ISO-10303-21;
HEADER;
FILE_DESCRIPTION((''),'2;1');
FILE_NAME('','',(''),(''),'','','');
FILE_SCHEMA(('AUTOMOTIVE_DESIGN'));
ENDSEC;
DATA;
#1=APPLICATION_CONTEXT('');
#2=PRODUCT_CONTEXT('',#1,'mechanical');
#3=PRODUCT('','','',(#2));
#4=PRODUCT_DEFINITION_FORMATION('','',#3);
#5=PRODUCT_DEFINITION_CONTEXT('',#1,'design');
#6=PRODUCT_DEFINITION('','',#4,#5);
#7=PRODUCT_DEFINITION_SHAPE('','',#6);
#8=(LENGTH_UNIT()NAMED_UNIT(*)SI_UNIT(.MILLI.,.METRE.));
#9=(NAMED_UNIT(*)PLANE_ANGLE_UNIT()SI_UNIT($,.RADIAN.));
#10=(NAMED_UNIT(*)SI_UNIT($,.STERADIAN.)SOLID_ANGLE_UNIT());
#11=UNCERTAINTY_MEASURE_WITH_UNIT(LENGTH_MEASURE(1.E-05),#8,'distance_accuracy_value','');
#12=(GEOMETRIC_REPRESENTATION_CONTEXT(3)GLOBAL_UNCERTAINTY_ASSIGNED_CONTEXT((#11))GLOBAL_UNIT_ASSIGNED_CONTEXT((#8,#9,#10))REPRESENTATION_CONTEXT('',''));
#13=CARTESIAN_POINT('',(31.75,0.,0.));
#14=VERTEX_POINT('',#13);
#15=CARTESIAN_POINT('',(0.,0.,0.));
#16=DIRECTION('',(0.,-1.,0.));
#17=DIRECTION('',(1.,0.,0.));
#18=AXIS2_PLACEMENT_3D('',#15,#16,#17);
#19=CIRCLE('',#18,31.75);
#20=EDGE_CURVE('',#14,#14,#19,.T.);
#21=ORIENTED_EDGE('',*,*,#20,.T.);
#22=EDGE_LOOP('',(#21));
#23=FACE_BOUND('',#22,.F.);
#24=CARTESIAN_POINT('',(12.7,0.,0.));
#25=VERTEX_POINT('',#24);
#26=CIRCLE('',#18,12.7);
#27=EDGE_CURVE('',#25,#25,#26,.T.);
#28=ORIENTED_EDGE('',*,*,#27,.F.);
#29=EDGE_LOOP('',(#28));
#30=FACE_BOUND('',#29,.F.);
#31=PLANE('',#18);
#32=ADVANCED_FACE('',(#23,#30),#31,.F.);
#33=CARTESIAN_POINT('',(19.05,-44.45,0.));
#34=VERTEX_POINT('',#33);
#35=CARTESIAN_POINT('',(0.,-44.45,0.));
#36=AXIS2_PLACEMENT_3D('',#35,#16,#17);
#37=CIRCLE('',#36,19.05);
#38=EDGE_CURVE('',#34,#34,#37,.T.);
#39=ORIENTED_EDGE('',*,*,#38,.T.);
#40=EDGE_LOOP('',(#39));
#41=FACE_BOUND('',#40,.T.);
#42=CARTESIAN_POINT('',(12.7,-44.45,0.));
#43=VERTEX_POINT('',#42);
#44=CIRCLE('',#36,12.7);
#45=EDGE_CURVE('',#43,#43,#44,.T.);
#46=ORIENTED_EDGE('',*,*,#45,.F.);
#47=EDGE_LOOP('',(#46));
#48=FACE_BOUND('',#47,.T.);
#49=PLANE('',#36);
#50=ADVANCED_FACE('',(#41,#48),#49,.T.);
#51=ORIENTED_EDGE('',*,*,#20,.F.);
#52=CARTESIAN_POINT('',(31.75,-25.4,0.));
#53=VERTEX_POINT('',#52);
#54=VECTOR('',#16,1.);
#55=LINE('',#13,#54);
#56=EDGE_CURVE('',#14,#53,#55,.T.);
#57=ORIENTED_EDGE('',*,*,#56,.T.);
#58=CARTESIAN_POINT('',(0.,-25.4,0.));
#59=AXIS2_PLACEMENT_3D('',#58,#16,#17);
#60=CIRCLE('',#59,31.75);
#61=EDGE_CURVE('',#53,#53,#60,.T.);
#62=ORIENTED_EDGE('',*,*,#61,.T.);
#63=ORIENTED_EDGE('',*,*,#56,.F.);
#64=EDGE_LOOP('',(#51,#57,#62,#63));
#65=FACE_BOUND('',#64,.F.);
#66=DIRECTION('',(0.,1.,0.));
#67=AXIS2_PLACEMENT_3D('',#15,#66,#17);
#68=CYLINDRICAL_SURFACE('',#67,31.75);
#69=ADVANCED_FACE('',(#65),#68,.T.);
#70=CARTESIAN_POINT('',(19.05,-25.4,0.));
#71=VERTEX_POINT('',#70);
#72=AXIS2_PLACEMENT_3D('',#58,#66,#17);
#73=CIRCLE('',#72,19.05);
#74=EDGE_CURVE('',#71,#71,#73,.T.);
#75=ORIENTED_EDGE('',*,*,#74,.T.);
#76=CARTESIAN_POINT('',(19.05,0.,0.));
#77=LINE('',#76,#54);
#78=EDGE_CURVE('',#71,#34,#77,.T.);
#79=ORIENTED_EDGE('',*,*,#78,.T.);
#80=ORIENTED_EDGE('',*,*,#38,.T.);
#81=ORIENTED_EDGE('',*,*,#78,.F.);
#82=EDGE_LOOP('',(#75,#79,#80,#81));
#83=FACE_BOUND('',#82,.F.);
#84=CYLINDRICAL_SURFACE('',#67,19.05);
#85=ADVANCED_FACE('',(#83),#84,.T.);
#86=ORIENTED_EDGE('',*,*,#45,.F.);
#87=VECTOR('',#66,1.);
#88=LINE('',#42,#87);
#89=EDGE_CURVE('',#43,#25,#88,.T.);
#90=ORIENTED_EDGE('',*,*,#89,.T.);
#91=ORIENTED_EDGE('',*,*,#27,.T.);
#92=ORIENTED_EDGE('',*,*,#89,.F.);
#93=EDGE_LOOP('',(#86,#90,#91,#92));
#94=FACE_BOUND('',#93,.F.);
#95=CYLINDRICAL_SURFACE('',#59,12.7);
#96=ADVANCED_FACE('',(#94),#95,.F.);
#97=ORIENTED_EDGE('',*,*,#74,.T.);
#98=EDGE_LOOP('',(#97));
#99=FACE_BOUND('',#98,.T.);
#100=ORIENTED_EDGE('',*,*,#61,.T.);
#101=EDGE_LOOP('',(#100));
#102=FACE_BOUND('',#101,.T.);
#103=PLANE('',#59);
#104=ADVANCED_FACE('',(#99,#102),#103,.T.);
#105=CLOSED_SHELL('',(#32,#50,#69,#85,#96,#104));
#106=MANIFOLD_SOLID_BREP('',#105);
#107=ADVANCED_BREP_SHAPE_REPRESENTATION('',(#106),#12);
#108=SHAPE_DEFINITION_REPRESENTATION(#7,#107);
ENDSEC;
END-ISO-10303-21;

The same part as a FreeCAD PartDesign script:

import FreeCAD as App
import Part
import Sketcher
Q = App.Units.Quantity

doc = App.newDocument("Part")
params = doc.addObject("Spreadsheet::Sheet", "Params")
for row, (alias, value) in enumerate([
    ("sketch1_diameter", "1 in"),
    ("sketch1_diameter2", "1.5 in"),
    ("pad1_length", "1.75 in"),
    ("sketch2_diameter", "2.5 in"),
    ("pad2_length", "1 in"),
    ("sketch3_diameter", "1 in"),
    ("pocket1_length", "1 in"),
], start=1):
    params.set(f"A{row}", alias)
    params.set(f"B{row}", "=" + value)
    params.setAlias(f"B{row}", alias)

body = doc.addObject("PartDesign::Body", "Body")

sketch1 = body.newObject("Sketcher::SketchObject", "Sketch")
sketch1.AttachmentSupport = (doc.getObject("XZ_Plane"), [""])
sketch1.MapMode = "FlatFace"
sketch1.addGeometry([
    Part.Circle(App.Vector(0, 0, 0), App.Vector(0, 0, 1), 19),
    Part.Circle(App.Vector(0, 0, 0), App.Vector(0, 0, 1), 13),
], False)
sketch1.addConstraint([
    Sketcher.Constraint("Coincident", 0, 3, -1, 1),
    Sketcher.Constraint("Coincident", 1, 3, -1, 1),
    Sketcher.Constraint("Diameter", 1, Q("1 in")),
    Sketcher.Constraint("Diameter", 0, Q("1.5 in")),
])
sketch1.setExpression("Constraints[2]", "Params.sketch1_diameter")
sketch1.setExpression("Constraints[3]", "Params.sketch1_diameter2")
pad1 = body.newObject("PartDesign::Pad", "Pad")
pad1.Profile = sketch1
pad1.setExpression("Length", "Params.pad1_length")

sketch2 = body.newObject("Sketcher::SketchObject", "Sketch001")
sketch2.AttachmentSupport = (doc.getObject("XZ_Plane"), [""])
sketch2.MapMode = "FlatFace"
sketch2.addGeometry(Part.Circle(App.Vector(0, 0, 0), App.Vector(0, 0, 1), 32), False)
sketch2.addConstraint([
    Sketcher.Constraint("Coincident", 0, 3, -1, 1),
    Sketcher.Constraint("Diameter", 0, Q("2.5 in")),
])
sketch2.setExpression("Constraints[1]", "Params.sketch2_diameter")
pad2 = body.newObject("PartDesign::Pad", "Pad001")
pad2.Profile = sketch2
pad2.setExpression("Length", "Params.pad2_length")

sketch3 = body.newObject("Sketcher::SketchObject", "Sketch002")
sketch3.AttachmentSupport = (doc.getObject("XZ_Plane"), [""])
sketch3.MapMode = "FlatFace"
sketch3.AttachmentOffset = App.Placement(App.Vector(0, 0, 1 * 25.4), App.Rotation())
sketch3.addGeometry(Part.Circle(App.Vector(0, 0, 0), App.Vector(0, 0, 1), 13), False)
sketch3.addConstraint([
    Sketcher.Constraint("Coincident", 0, 3, -1, 1),
    Sketcher.Constraint("Diameter", 0, Q("1 in")),
])
sketch3.setExpression("Constraints[1]", "Params.sketch3_diameter")
pocket1 = body.newObject("PartDesign::Pocket", "Pocket")
pocket1.Profile = sketch3
pocket1.setExpression("Length", "Params.pocket1_length")

doc.recompute()
